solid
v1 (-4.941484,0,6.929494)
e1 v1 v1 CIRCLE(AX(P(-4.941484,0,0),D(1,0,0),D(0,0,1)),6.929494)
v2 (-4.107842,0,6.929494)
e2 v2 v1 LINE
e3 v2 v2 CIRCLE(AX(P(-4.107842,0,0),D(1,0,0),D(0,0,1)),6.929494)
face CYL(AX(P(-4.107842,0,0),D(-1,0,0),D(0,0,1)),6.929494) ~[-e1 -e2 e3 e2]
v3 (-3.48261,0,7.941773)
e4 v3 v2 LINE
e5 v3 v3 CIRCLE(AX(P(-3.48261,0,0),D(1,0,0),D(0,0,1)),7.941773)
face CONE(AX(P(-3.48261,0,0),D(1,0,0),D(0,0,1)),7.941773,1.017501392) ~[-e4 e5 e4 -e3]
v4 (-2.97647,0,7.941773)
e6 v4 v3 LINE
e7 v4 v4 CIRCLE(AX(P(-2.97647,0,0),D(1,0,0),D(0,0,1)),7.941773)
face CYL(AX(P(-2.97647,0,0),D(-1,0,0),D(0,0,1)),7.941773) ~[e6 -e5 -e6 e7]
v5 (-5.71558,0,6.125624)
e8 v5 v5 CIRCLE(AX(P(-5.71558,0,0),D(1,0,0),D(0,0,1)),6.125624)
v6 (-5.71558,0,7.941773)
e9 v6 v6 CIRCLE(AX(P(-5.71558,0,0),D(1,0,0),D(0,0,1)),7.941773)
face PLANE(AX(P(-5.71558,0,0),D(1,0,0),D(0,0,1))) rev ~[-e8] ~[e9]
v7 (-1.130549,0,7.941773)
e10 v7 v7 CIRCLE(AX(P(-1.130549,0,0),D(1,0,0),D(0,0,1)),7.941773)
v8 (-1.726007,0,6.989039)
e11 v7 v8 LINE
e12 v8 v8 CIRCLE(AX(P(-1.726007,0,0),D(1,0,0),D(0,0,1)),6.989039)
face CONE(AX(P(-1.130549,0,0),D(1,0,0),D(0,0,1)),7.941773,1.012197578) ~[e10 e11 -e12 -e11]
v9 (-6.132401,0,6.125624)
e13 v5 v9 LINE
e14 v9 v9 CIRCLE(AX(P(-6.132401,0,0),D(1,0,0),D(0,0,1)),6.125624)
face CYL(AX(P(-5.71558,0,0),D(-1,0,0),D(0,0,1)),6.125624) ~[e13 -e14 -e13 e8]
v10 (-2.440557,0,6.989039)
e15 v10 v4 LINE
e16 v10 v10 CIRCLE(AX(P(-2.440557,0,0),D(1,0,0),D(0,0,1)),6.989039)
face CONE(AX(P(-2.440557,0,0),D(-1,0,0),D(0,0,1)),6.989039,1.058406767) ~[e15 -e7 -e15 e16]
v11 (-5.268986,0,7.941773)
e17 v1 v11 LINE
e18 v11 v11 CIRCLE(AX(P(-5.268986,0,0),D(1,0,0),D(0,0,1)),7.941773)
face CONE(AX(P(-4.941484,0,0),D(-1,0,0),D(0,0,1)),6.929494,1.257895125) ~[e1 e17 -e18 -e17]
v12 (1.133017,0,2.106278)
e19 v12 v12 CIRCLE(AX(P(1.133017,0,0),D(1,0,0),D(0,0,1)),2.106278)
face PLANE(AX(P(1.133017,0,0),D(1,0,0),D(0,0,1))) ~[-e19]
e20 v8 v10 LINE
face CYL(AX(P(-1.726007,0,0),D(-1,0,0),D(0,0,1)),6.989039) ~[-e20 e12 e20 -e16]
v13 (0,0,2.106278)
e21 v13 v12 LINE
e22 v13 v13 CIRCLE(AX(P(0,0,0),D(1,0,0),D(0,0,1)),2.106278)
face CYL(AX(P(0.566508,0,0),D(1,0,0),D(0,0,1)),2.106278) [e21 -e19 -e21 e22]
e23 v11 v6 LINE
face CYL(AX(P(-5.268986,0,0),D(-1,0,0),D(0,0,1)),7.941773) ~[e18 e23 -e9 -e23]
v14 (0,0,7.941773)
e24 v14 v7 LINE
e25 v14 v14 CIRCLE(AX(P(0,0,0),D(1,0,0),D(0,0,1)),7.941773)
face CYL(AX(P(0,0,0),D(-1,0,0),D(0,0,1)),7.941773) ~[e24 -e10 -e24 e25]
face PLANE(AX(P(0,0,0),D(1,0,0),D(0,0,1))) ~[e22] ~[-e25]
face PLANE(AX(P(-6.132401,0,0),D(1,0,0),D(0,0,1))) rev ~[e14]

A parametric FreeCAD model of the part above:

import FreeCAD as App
import Part
import Sketcher
from FreeCAD import Vector

doc = App.newDocument("Part")
body = doc.addObject("PartDesign::Body", "Body")

# Sketch on XZ plane
sketch1 = body.newObject("Sketcher::SketchObject", "Sketch")
sketch1.AttachmentSupport = (doc.getObject("XZ_Plane"), [""])
sketch1.MapMode = "FlatFace"
sketch1.addGeometry([
    Part.LineSegment(Vector(-6.132401, 6.125624, 0), Vector(-6.132401, 0, 0)),  # 0
    Part.LineSegment(Vector(-6.132401, 0, 0), Vector(1.133017, 0, 0)),  # 1
    Part.LineSegment(Vector(1.133017, 0, 0), Vector(1.133017, 2.106278, 0)),  # 2
    Part.LineSegment(Vector(1.133017, 2.106278, 0), Vector(0, 2.106278, 0)),  # 3
    Part.LineSegment(Vector(0, 2.106278, 0), Vector(0, 7.941773, 0)),  # 4
    Part.LineSegment(Vector(0, 7.941773, 0), Vector(-1.130549, 7.941773, 0)),  # 5
    Part.LineSegment(Vector(-1.130549, 7.941773, 0), Vector(-1.726007, 6.989039, 0)),  # 6
    Part.LineSegment(Vector(-1.726007, 6.989039, 0), Vector(-2.440557, 6.989039, 0)),  # 7
    Part.LineSegment(Vector(-2.440557, 6.989039, 0), Vector(-2.97647, 7.941773, 0)),  # 8
    Part.LineSegment(Vector(-2.97647, 7.941773, 0), Vector(-3.48261, 7.941773, 0)),  # 9
    Part.LineSegment(Vector(-3.48261, 7.941773, 0), Vector(-4.107842, 6.929494, 0)),  # 10
    Part.LineSegment(Vector(-4.107842, 6.929494, 0), Vector(-4.941484, 6.929494, 0)),  # 11
    Part.LineSegment(Vector(-4.941484, 6.929494, 0), Vector(-5.268986, 7.941773, 0)),  # 12
    Part.LineSegment(Vector(-5.268986, 7.941773, 0), Vector(-5.71558, 7.941773, 0)),  # 13
    Part.LineSegment(Vector(-5.71558, 7.941773, 0), Vector(-5.71558, 6.125624, 0)),  # 14
    Part.LineSegment(Vector(-5.71558, 6.125624, 0), Vector(-6.132401, 6.125624, 0)),  # 15
], False)
sketch1.addConstraint([
    Sketcher.Constraint("Coincident", 0, 2, 1, 1),
    Sketcher.Constraint("Coincident", 1, 2, 2, 1),
    Sketcher.Constraint("Coincident", 2, 2, 3, 1),
    Sketcher.Constraint("Coincident", 3, 2, 4, 1),
    Sketcher.Constraint("Coincident", 4, 2, 5, 1),
    Sketcher.Constraint("Coincident", 5, 2, 6, 1),
    Sketcher.Constraint("Coincident", 6, 2, 7, 1),
    Sketcher.Constraint("Coincident", 7, 2, 8, 1),
    Sketcher.Constraint("Coincident", 8, 2, 9, 1),
    Sketcher.Constraint("Coincident", 9, 2, 10, 1),
    Sketcher.Constraint("Coincident", 10, 2, 11, 1),
    Sketcher.Constraint("Coincident", 11, 2, 12, 1),
    Sketcher.Constraint("Coincident", 12, 2, 13, 1),
    Sketcher.Constraint("Coincident", 13, 2, 14, 1),
    Sketcher.Constraint("Coincident", 14, 2, 15, 1),
    Sketcher.Constraint("Coincident", 15, 2, 0, 1),
    Sketcher.Constraint("Vertical", 0),
    Sketcher.Constraint("Horizontal", 1),
    Sketcher.Constraint("Vertical", 2),
    Sketcher.Constraint("Horizontal", 3),
    Sketcher.Constraint("Vertical", 4),
    Sketcher.Constraint("Horizontal", 5),
    Sketcher.Constraint("Horizontal", 7),
    Sketcher.Constraint("Horizontal", 9),
    Sketcher.Constraint("Horizontal", 11),
    Sketcher.Constraint("Horizontal", 13),
    Sketcher.Constraint("Vertical", 14),
    Sketcher.Constraint("Horizontal", 15),
    Sketcher.Constraint("PointOnObject", 0, 2, -1),
    Sketcher.Constraint("PointOnObject", 3, 2, -2),
    Sketcher.Constraint("Horizontal", 5, 2, 8, 2),
    Sketcher.Constraint("Horizontal", 9, 2, 12, 2),
    Sketcher.Constraint("Distance", 10, 1.1898),
    Sketcher.Constraint("DistanceX", 5, 2, 5, 1, 1.130549),
    Sketcher.Constraint("DistanceX", 7, 2, 7, 1, 0.71455),
    Sketcher.Constraint("DistanceX", 9, 2, 9, 1, 0.50614),
    Sketcher.Constraint("DistanceX", 15, 2, 15, 1, 0.416821),
    Sketcher.Constraint("DistanceY", 2, 1, 2, 2, 2.106278),
    Sketcher.Constraint("DistanceY", 14, 2, 14, 1, 1.816149),
    Sketcher.Constraint("DistanceX", 0, 2, -1, 1, 6.132401),
    Sketcher.Constraint("DistanceX", 12, 2, 11, 2, 0.327502),
    Sketcher.Constraint("Distance", 6, 1.123509),
    Sketcher.Constraint("Distance", 12, 1.063939),
    Sketcher.Constraint("DistanceX", 1, 1, 1, 2, 7.265417),
    Sketcher.Constraint("DistanceX", 11, 2, 11, 1, 0.833642),
    Sketcher.Constraint("DistanceX", 13, 2, 13, 1, 0.446594),
    Sketcher.Constraint("DistanceY", 0, 2, 0, 1, 6.125624),
    Sketcher.Constraint("DistanceY", -1, 1, 6, 2, 6.989039),
])
revolution = body.newObject("PartDesign::Revolution", "Revolution")
revolution.Profile = sketch1
revolution.ReferenceAxis = (sketch1, ["H_Axis"])
revolution.Angle = 360

doc.recompute()
